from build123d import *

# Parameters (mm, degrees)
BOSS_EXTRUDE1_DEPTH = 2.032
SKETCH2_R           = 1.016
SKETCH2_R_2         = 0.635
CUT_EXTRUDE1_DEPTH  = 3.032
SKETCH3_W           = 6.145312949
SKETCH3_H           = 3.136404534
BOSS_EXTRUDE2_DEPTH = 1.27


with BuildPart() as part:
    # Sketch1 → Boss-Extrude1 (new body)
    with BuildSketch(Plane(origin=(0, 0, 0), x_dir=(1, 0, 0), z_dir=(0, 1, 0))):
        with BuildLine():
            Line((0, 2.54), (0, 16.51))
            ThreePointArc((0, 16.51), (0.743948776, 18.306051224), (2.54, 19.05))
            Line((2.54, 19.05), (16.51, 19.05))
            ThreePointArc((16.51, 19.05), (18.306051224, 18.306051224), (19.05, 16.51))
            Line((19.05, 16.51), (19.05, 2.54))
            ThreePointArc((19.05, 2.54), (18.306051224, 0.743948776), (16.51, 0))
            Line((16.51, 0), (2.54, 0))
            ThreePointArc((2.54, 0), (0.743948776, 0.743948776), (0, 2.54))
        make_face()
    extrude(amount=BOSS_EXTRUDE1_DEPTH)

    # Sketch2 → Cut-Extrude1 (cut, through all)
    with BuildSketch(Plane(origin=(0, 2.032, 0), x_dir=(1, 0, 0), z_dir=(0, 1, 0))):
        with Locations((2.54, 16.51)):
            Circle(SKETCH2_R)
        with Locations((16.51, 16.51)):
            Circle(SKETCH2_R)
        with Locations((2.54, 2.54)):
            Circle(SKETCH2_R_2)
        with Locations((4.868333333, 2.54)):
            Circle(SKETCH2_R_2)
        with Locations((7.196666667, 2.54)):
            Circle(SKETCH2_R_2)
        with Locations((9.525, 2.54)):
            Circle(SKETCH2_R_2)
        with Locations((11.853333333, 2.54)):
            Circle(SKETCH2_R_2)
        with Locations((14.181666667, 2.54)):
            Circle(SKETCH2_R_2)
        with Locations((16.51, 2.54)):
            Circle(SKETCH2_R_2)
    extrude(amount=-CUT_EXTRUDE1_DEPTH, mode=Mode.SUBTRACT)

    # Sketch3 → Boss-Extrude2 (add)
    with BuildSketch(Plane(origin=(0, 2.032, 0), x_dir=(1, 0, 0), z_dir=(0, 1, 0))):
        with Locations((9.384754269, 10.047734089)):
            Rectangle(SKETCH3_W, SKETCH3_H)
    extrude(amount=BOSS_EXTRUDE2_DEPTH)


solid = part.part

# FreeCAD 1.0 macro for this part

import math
import FreeCAD as App
import Part
import Sketcher

V = App.Vector
Q = App.Units.Quantity


def add_polygon(sketch, points):
    """Adds a closed chain of lines whose ends are joined by coincident constraints."""
    first, n = sketch.GeometryCount, len(points)
    for a, b in zip(points, points[1:] + points[:1]):
        sketch.addGeometry(Part.LineSegment(App.Vector(*a, 0), App.Vector(*b, 0)), False)
    for i in range(n):
        sketch.addConstraint(Sketcher.Constraint("Coincident", first + i, 2, first + (i + 1) % n, 1))

doc = App.newDocument("Part")
body = doc.addObject("PartDesign::Body", "Body")

# Sketch on XZ plane
sketch1 = doc.addObject("Sketcher::SketchObject", "Sketch")
body.addObject(sketch1)
sketch1.AttachmentSupport = (doc.XZ_Plane, [""])
sketch1.MapMode = "FlatFace"
sketch1.addGeometry(Part.LineSegment(V(0, -16.51, 0), V(0, -2.54, 0)), False)
sketch1.addGeometry(Part.ArcOfCircle(Part.Circle(V(2.54, -2.54, 0), V(0, 0, 1), 2.54), math.radians(90), math.radians(180)), False)
sketch1.addGeometry(Part.LineSegment(V(2.54, 0, 0), V(16.51, 0, 0)), False)
sketch1.addGeometry(Part.ArcOfCircle(Part.Circle(V(16.51, -2.54, 0), V(0, 0, 1), 2.54), math.radians(0), math.radians(90)), False)
sketch1.addGeometry(Part.LineSegment(V(19.05, -2.54, 0), V(19.05, -16.51, 0)), False)
sketch1.addGeometry(Part.ArcOfCircle(Part.Circle(V(16.51, -16.51, 0), V(0, 0, 1), 2.54), math.radians(-90), math.radians(0)), False)
sketch1.addGeometry(Part.LineSegment(V(16.51, -19.05, 0), V(2.54, -19.05, 0)), False)
sketch1.addGeometry(Part.ArcOfCircle(Part.Circle(V(2.54, -16.51, 0), V(0, 0, 1), 2.54), math.radians(-180), math.radians(-90)), False)
sketch1.addConstraint(Sketcher.Constraint("Tangent", 0, 2, 1, 2))
sketch1.addConstraint(Sketcher.Constraint("Tangent", 1, 1, 2, 1))
sketch1.addConstraint(Sketcher.Constraint("Tangent", 2, 2, 3, 2))
sketch1.addConstraint(Sketcher.Constraint("Tangent", 3, 1, 4, 1))
sketch1.addConstraint(Sketcher.Constraint("Tangent", 4, 2, 5, 2))
sketch1.addConstraint(Sketcher.Constraint("Tangent", 5, 1, 6, 1))
sketch1.addConstraint(Sketcher.Constraint("Tangent", 6, 2, 7, 2))
sketch1.addConstraint(Sketcher.Constraint("Tangent", 7, 1, 0, 1))
sketch1.addConstraint(Sketcher.Constraint("Vertical", 0))
sketch1.addConstraint(Sketcher.Constraint("Horizontal", 2))
sketch1.addConstraint(Sketcher.Constraint("Vertical", 4))
sketch1.addConstraint(Sketcher.Constraint("Horizontal", 6))
sketch1.addConstraint(Sketcher.Constraint("Equal", 1, 3))
sketch1.addConstraint(Sketcher.Constraint("Equal", 3, 5))
sketch1.addConstraint(Sketcher.Constraint("Equal", 5, 7))
sketch1.addConstraint(Sketcher.Constraint("PointOnObject", 0, 2, -2))
sketch1.addConstraint(Sketcher.Constraint("PointOnObject", 1, 1, -1))
sketch1.addConstraint(Sketcher.Constraint("Equal", 6, 0))
sketch1.addConstraint(Sketcher.Constraint("Radius", 1, Q("0.1 in")))
sketch1.addConstraint(Sketcher.Constraint("DistanceX", 2, 1, 2, 2, Q("0.55 in")))
pad1 = doc.addObject("PartDesign::Pad", "Pad")
body.addObject(pad1)
pad1.Profile = sketch1
pad1.Length = Q("0.08 in")
pad1.Reversed = True

# Sketch on XZ plane
sketch2 = doc.addObject("Sketcher::SketchObject", "Sketch001")
body.addObject(sketch2)
sketch2.AttachmentSupport = (doc.XZ_Plane, [""])
sketch2.MapMode = "FlatFace"
sketch2.AttachmentOffset = App.Placement(V(0, 0, -0.08 * 25.4), App.Rotation())
sketch2.addGeometry(Part.Circle(V(2.54, -16.51, 0), V(0, 0, 1), 1.016), False)
sketch2.addGeometry(Part.Circle(V(16.51, -16.51, 0), V(0, 0, 1), 1.016), False)
sketch2.addGeometry(Part.Circle(V(2.54, -2.54, 0), V(0, 0, 1), 0.635), False)
sketch2.addGeometry(Part.Circle(V(4.868333, -2.54, 0), V(0, 0, 1), 0.635), False)
sketch2.addGeometry(Part.Circle(V(7.196667, -2.54, 0), V(0, 0, 1), 0.635), False)
sketch2.addGeometry(Part.Circle(V(9.525, -2.54, 0), V(0, 0, 1), 0.635), False)
sketch2.addGeometry(Part.Circle(V(11.853333, -2.54, 0), V(0, 0, 1), 0.635), False)
sketch2.addGeometry(Part.Circle(V(14.181667, -2.54, 0), V(0, 0, 1), 0.635), False)
sketch2.addGeometry(Part.Circle(V(16.51, -2.54, 0), V(0, 0, 1), 0.635), False)
sketch2.addConstraint(Sketcher.Constraint("Equal", 0, 1))
sketch2.addConstraint(Sketcher.Constraint("Equal", 2, 3))
sketch2.addConstraint(Sketcher.Constraint("Equal", 3, 4))
sketch2.addConstraint(Sketcher.Constraint("Equal", 4, 5))
sketch2.addConstraint(Sketcher.Constraint("Equal", 5, 6))
sketch2.addConstraint(Sketcher.Constraint("Equal", 6, 7))
sketch2.addConstraint(Sketcher.Constraint("Equal", 7, 8))
sketch2.addConstraint(Sketcher.Constraint("Horizontal", 0, 3, 1, 3))
sketch2.addConstraint(Sketcher.Constraint("Horizontal", 2, 3, 3, 3))
sketch2.addConstraint(Sketcher.Constraint("Horizontal", 3, 3, 4, 3))
sketch2.addConstraint(Sketcher.Constraint("Horizontal", 4, 3, 5, 3))
sketch2.addConstraint(Sketcher.Constraint("Horizontal", 5, 3, 6, 3))
sketch2.addConstraint(Sketcher.Constraint("Horizontal", 6, 3, 7, 3))
sketch2.addConstraint(Sketcher.Constraint("Horizontal", 7, 3, 8, 3))
sketch2.addConstraint(Sketcher.Constraint("Vertical", 0, 3, 2, 3))
sketch2.addConstraint(Sketcher.Constraint("Vertical", 1, 3, 8, 3))
sketch2.addConstraint(Sketcher.Constraint("Diameter", 0, Q("0.08 in")))
sketch2.addConstraint(Sketcher.Constraint("Diameter", 2, Q("0.05 in")))
sketch2.addConstraint(Sketcher.Constraint("DistanceX", -1, 1, 0, 3, Q("0.1 in")))
sketch2.addConstraint(Sketcher.Constraint("DistanceY", 2, 3, -1, 1, Q("0.1 in")))
sketch2.addConstraint(Sketcher.Constraint("DistanceY", 0, 3, -1, 1, Q("0.65 in")))
sketch2.addConstraint(Sketcher.Constraint("DistanceX", -1, 1, 1, 3, Q("0.65 in")))
sketch2.addConstraint(Sketcher.Constraint("DistanceX", -1, 1, 5, 3, Q("0.375 in")))
sketch2.addConstraint(Sketcher.Constraint("DistanceX", 3, 3, 6, 3, Q("0.275 in")))
sketch2.addConstraint(Sketcher.Constraint("DistanceX", 4, 3, 7, 3, Q("0.275 in")))
sketch2.addConstraint(Sketcher.Constraint("DistanceX", -1, 1, 3, 3, 4.868333))
sketch2.addConstraint(Sketcher.Constraint("DistanceX", -1, 1, 4, 3, 7.196667))
pocket1 = doc.addObject("PartDesign::Pocket", "Pocket")
body.addObject(pocket1)
pocket1.Profile = sketch2
pocket1.Type = "ThroughAll"
pocket1.Reversed = True

# Sketch on XZ plane
sketch3 = doc.addObject("Sketcher::SketchObject", "Sketch002")
body.addObject(sketch3)
sketch3.AttachmentSupport = (doc.XZ_Plane, [""])
sketch3.MapMode = "FlatFace"
sketch3.AttachmentOffset = App.Placement(V(0, 0, -0.08 * 25.4), App.Rotation())
add_polygon(sketch3, [(6.312098, -11.615936), (6.312098, -8.479532), (12.457411, -8.479532), (12.457411, -11.615936)])  # lines 0-3
sketch3.addConstraint(Sketcher.Constraint("Vertical", 0))
sketch3.addConstraint(Sketcher.Constraint("Horizontal", 1))
sketch3.addConstraint(Sketcher.Constraint("Vertical", 2))
sketch3.addConstraint(Sketcher.Constraint("Horizontal", 3))
sketch3.addConstraint(Sketcher.Constraint("DistanceX", 1, 1, 1, 2, 6.145313))
sketch3.addConstraint(Sketcher.Constraint("DistanceY", 0, 1, 0, 2, 3.136405))
sketch3.addConstraint(Sketcher.Constraint("DistanceY", 0, 2, -1, 1, 8.479532))
sketch3.addConstraint(Sketcher.Constraint("DistanceX", -1, 1, 1, 2, 12.457411))
pad2 = doc.addObject("PartDesign::Pad", "Pad001")
body.addObject(pad2)
pad2.Profile = sketch3
pad2.Length = Q("0.05 in")
pad2.Reversed = True

doc.recompute()
